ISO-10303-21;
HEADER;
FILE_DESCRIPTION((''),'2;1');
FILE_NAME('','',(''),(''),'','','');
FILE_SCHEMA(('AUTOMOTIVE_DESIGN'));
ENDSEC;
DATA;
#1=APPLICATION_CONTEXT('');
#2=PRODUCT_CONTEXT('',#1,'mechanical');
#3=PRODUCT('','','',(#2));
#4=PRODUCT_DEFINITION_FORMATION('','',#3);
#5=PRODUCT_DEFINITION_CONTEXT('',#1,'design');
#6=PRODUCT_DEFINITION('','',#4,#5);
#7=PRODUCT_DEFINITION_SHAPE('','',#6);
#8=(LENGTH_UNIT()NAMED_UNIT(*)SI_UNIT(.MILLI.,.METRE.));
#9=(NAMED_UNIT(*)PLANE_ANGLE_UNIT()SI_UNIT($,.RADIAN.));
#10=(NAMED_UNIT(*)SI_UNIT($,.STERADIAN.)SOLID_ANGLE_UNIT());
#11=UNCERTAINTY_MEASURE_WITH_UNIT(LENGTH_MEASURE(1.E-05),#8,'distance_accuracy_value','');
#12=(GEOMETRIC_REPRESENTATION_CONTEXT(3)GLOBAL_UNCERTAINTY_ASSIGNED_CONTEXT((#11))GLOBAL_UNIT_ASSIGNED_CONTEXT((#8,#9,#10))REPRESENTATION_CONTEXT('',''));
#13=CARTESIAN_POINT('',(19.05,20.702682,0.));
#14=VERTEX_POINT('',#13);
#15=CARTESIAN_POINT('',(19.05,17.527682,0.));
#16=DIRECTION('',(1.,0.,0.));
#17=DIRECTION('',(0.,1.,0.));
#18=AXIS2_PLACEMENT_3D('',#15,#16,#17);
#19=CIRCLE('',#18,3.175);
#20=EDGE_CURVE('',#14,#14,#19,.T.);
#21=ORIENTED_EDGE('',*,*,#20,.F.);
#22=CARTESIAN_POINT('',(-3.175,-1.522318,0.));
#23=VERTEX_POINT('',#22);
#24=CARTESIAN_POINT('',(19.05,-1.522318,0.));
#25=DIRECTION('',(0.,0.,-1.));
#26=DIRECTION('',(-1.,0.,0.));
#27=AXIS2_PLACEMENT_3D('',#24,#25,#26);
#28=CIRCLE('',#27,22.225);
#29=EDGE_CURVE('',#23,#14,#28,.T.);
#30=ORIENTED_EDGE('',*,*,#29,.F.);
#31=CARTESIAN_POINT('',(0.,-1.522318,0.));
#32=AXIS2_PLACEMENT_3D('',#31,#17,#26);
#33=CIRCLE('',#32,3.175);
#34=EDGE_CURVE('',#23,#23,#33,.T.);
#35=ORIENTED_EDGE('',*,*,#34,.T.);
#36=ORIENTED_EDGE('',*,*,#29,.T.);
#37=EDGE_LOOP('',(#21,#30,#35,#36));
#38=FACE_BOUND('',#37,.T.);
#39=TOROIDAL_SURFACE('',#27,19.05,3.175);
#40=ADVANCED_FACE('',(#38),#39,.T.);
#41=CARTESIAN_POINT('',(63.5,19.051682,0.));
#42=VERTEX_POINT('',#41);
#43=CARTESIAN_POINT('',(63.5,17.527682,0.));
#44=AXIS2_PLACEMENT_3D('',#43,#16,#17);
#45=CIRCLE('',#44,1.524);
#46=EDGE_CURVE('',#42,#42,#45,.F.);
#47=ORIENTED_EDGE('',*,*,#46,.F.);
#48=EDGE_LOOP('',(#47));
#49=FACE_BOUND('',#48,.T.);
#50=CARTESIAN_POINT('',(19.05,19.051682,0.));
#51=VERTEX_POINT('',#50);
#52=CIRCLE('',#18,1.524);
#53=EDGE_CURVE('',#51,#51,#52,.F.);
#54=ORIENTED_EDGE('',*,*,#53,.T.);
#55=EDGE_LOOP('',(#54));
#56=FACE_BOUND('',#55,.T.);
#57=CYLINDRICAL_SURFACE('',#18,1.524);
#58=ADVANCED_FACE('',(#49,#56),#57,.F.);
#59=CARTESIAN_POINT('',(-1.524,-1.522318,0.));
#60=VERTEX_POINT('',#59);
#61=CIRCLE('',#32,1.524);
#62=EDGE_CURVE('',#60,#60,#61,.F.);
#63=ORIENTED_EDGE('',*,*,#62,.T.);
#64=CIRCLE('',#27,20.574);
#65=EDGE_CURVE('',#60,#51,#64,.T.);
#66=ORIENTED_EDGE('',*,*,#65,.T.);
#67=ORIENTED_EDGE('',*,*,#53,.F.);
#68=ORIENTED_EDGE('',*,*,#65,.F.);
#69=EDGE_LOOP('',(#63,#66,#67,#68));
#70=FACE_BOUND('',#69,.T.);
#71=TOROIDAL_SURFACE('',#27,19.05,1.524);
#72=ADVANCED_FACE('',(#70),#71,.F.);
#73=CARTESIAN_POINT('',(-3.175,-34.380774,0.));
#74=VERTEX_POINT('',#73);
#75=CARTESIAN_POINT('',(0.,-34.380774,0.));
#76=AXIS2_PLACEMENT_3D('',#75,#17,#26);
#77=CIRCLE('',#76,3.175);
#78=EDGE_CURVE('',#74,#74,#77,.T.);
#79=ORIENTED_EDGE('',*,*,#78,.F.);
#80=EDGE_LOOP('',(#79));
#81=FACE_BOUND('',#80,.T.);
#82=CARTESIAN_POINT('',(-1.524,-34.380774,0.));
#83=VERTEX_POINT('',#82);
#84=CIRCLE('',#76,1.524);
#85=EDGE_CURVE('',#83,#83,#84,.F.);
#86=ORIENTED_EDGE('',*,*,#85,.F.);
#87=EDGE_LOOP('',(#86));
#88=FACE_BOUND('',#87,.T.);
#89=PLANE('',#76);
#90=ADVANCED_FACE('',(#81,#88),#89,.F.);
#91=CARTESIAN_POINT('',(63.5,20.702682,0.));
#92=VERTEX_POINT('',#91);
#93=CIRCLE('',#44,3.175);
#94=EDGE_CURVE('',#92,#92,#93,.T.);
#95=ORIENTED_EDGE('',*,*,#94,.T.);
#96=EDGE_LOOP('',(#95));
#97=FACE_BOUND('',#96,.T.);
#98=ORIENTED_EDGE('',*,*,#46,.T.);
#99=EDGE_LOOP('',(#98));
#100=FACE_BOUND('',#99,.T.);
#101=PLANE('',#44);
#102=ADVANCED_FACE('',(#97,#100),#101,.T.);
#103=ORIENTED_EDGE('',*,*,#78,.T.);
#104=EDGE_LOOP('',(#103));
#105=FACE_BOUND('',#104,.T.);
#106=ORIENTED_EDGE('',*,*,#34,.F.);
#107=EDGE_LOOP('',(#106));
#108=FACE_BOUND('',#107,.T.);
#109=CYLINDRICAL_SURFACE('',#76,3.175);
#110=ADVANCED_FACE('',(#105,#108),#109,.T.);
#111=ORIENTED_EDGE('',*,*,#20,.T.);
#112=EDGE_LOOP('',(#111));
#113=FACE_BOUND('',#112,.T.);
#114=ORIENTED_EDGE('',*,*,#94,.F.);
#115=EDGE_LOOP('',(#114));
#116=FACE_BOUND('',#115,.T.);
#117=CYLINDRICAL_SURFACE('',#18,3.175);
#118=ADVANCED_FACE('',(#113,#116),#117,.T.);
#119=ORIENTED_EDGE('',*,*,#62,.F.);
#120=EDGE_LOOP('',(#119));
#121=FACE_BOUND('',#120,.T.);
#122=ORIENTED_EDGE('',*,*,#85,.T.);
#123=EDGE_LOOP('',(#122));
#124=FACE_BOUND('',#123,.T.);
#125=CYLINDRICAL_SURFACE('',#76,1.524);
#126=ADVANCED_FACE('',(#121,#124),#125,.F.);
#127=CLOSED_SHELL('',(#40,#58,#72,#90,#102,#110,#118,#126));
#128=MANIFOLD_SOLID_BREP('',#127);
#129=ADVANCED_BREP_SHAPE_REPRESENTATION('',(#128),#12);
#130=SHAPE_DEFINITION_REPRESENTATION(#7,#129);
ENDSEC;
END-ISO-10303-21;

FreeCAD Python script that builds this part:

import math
import FreeCAD as App
import Part
import Sketcher
Q = App.Units.Quantity

doc = App.newDocument("Part")
params = doc.addObject("Spreadsheet::Sheet", "Params")
for row, (alias, value) in enumerate([
    ("sketch1_diameter", "0.25 in"),
    ("sketch1_diameter2", "0.12 in"),
    ("sketch2_radius", "0.75 in"),
    ("sketch2_width", "1.75 in"),
], start=1):
    params.set(f"A{row}", alias)
    params.set(f"B{row}", "=" + value)
    params.setAlias(f"B{row}", alias)

body = doc.addObject("PartDesign::Body", "Body")

sketch1 = body.newObject("Sketcher::SketchObject", "Sketch")
sketch1.AttachmentSupport = (doc.getObject("YZ_Plane"), [""])
sketch1.MapMode = "FlatFace"
sketch1.AttachmentOffset = App.Placement(App.Vector(0, 0, 2.5 * 25.4), App.Rotation())
sketch1.addGeometry(Part.Circle(App.Vector(17.5, 0, 0), App.Vector(0, 0, 1), 3.2), False)
sketch1.addGeometry(Part.Circle(App.Vector(17.5, 0, 0), App.Vector(0, 0, 1), 1.5), False)
sketch1.addConstraint(Sketcher.Constraint("Coincident", 1, 3, 0, 3))
sketch1.addConstraint(Sketcher.Constraint("PointOnObject", 0, 3, -1))
sketch1.addConstraint(Sketcher.Constraint("Diameter", 0, Q("0.25 in")))
sketch1.addConstraint(Sketcher.Constraint("Diameter", 1, Q("0.12 in")))
sketch1.addConstraint(Sketcher.Constraint("DistanceX", -1, 1, 0, 3, Q("17.527682 mm")))
sketch1.setExpression("Constraints[2]", "Params.sketch1_diameter")
sketch1.setExpression("Constraints[3]", "Params.sketch1_diameter2")

sketch2 = body.newObject("Sketcher::SketchObject", "Sketch001")
sketch2.AttachmentSupport = (doc.getObject("XY_Plane"), [""])
sketch2.MapMode = "FlatFace"
sketch2.addGeometry(Part.LineSegment(App.Vector(0, -34, 0), App.Vector(0, -2, 0)), False)
sketch2.addGeometry(Part.ArcOfCircle(Part.Circle(App.Vector(19, -2, 0), App.Vector(0, 0, 1), 19), math.radians(90), math.radians(180)), False)
sketch2.addGeometry(Part.LineSegment(App.Vector(19, 18, 0), App.Vector(64, 18, 0)), False)
sketch2.addConstraint(Sketcher.Constraint("Tangent", 0, 2, 1, 2))
sketch2.addConstraint(Sketcher.Constraint("Tangent", 1, 1, 2, 1))
sketch2.addConstraint(Sketcher.Constraint("Vertical", 0))
sketch2.addConstraint(Sketcher.Constraint("Horizontal", 2))
sketch2.addConstraint(Sketcher.Constraint("PointOnObject", 0, 1, -2))
sketch2.addConstraint(Sketcher.Constraint("Radius", 1, Q("0.75 in")))
sketch2.addConstraint(Sketcher.Constraint("DistanceX", 2, 1, 2, 2, Q("1.75 in")))
sketch2.addConstraint(Sketcher.Constraint("DistanceY", 0, 1, 0, 2, Q("32.858456 mm")))
sketch2.addConstraint(Sketcher.Constraint("DistanceY", 1, 3, -1, 1, Q("1.522318 mm")))
sketch2.setExpression("Constraints[5]", "Params.sketch2_radius")
sketch2.setExpression("Constraints[6]", "Params.sketch2_width")
doc.recompute()

additivepipe = body.newObject("PartDesign::AdditivePipe", "AdditivePipe")
additivepipe.Profile = sketch1
additivepipe.Spine = (sketch2, ["Edge1", "Edge2", "Edge3"])

doc.recompute()
